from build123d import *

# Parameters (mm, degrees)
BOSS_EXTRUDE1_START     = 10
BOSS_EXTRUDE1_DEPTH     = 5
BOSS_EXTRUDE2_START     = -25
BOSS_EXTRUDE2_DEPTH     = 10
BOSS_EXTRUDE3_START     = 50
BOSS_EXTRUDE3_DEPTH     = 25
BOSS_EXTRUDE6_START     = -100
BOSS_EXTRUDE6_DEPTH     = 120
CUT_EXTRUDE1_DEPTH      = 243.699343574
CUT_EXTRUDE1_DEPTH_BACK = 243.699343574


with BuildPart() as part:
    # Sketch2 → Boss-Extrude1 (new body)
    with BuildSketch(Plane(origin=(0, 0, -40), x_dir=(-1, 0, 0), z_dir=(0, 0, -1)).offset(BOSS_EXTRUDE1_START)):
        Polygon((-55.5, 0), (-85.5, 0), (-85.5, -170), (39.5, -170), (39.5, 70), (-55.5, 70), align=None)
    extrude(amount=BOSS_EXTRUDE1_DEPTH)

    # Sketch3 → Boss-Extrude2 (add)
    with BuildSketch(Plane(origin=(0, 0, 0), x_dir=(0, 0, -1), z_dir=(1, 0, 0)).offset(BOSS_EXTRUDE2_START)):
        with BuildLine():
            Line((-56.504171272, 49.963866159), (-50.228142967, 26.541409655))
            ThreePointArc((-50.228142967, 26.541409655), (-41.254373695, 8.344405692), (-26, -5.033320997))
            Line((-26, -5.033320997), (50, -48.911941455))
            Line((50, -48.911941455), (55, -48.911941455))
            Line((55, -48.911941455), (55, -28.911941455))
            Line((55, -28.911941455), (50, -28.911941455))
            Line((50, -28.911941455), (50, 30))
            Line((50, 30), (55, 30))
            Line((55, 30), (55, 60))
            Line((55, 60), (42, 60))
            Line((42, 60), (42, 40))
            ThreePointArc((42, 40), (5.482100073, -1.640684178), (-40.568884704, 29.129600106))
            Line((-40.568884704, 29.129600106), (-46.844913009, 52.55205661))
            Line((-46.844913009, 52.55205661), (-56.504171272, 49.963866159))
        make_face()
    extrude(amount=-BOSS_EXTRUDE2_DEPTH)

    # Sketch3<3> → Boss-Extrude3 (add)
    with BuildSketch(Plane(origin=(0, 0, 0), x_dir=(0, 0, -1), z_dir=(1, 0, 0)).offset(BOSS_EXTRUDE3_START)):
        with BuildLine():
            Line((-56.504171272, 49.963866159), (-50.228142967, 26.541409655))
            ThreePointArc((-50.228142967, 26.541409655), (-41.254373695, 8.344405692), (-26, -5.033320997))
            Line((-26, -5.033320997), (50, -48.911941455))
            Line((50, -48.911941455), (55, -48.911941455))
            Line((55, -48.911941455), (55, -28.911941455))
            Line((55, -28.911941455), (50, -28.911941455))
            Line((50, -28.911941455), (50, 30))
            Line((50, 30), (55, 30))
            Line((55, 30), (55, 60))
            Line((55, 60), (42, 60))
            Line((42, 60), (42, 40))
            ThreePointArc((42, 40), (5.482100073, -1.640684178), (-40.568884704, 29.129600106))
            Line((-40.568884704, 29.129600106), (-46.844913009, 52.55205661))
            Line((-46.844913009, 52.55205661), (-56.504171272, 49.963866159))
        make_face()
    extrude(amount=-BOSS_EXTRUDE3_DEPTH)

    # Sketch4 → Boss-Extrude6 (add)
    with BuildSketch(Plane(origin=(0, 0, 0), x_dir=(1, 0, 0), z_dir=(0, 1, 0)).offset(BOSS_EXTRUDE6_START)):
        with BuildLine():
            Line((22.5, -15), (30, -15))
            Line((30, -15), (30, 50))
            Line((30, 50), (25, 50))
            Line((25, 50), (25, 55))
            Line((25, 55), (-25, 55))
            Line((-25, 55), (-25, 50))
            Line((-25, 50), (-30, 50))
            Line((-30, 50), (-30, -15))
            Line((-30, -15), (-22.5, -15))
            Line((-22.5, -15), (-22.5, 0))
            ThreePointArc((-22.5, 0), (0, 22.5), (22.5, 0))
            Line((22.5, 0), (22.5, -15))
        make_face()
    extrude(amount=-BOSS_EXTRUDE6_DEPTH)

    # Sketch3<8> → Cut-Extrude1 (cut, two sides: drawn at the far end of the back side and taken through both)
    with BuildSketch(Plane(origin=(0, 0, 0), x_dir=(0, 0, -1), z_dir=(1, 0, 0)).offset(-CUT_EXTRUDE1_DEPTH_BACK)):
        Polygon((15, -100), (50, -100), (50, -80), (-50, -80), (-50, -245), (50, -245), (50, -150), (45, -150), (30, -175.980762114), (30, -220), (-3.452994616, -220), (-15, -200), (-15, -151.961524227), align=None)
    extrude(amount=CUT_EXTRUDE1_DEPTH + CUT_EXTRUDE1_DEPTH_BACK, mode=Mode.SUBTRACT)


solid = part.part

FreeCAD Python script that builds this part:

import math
import FreeCAD as App
import Part
import Sketcher
Q = App.Units.Quantity


def add_polygon(sketch, points):
    """Adds a closed chain of lines whose ends are joined by coincident constraints."""
    first, n = sketch.GeometryCount, len(points)
    for a, b in zip(points, points[1:] + points[:1]):
        sketch.addGeometry(Part.LineSegment(App.Vector(*a, 0), App.Vector(*b, 0)), False)
    for i in range(n):
        sketch.addConstraint(Sketcher.Constraint("Coincident", first + i, 2, first + (i + 1) % n, 1))

doc = App.newDocument("Part")
params = doc.addObject("Spreadsheet::Sheet", "Params")
for row, (alias, value) in enumerate([
    ("sketch1_width", "30 mm"),
    ("sketch1_width2", "125 mm"),
    ("sketch1_height", "170 mm"),
    ("sketch1_height2", "240 mm"),
    ("pad1_length", "5 mm"),
    ("sketch2_radius", "52 mm"),
    ("sketch2_radius2", "42 mm"),
    ("sketch2_width", "20 mm"),
    ("sketch2_width2", "30 mm"),
    ("sketch2_height", "5 mm"),
    ("pad2_length", "10 mm"),
    ("sketch3_radius", "52 mm"),
    ("sketch3_radius2", "42 mm"),
    ("sketch3_width", "20 mm"),
    ("sketch3_width2", "30 mm"),
    ("sketch3_height", "5 mm"),
    ("pad3_length", "25 mm"),
    ("sketch4_radius", "22.5 mm"),
    ("sketch4_width", "5 mm"),
    ("sketch4_width2", "50 mm"),
    ("sketch4_height", "65 mm"),
    ("sketch4_height2", "15 mm"),
    ("pad4_length", "120 mm"),
    ("sketch5_width", "20 mm"),
    ("sketch5_width2", "165 mm"),
    ("sketch5_width3", "95 mm"),
    ("sketch5_height", "35 mm"),
    ("sketch5_height2", "100 mm"),
], start=1):
    params.set(f"A{row}", alias)
    params.set(f"B{row}", "=" + value)
    params.setAlias(f"B{row}", alias)

body = doc.addObject("PartDesign::Body", "Body")

# Sketch on XY plane
sketch1 = body.newObject("Sketcher::SketchObject", "Sketch")
sketch1.AttachmentSupport = (doc.getObject("XY_Plane"), [""])
sketch1.MapMode = "FlatFace"
sketch1.AttachmentOffset = App.Placement(App.Vector(0, 0, -50), App.Rotation())
add_polygon(sketch1, [(56, 0), (86, 0), (86, -170), (-40, -170), (-40, 70), (56, 70)])  # lines 0-5
sketch1.addConstraint(Sketcher.Constraint("Horizontal", 0))
sketch1.addConstraint(Sketcher.Constraint("Vertical", 1))
sketch1.addConstraint(Sketcher.Constraint("Horizontal", 2))
sketch1.addConstraint(Sketcher.Constraint("Vertical", 3))
sketch1.addConstraint(Sketcher.Constraint("Horizontal", 4))
sketch1.addConstraint(Sketcher.Constraint("Vertical", 5))
sketch1.addConstraint(Sketcher.Constraint("PointOnObject", 0, 2, -1))
sketch1.addConstraint(Sketcher.Constraint("DistanceX", 0, 1, 0, 2, Q("30 mm")))
sketch1.addConstraint(Sketcher.Constraint("DistanceX", 2, 2, 2, 1, Q("125 mm")))
sketch1.addConstraint(Sketcher.Constraint("DistanceY", 1, 2, 1, 1, Q("170 mm")))
sketch1.addConstraint(Sketcher.Constraint("DistanceY", 3, 1, 3, 2, Q("240 mm")))
sketch1.addConstraint(Sketcher.Constraint("DistanceX", -1, 1, 0, 2, Q("85.5 mm")))
sketch1.setExpression("Constraints[13]", "Params.sketch1_width")
sketch1.setExpression("Constraints[14]", "Params.sketch1_width2")
sketch1.setExpression("Constraints[15]", "Params.sketch1_height")
sketch1.setExpression("Constraints[16]", "Params.sketch1_height2")
pad1 = body.newObject("PartDesign::Pad", "Pad")
pad1.Profile = sketch1
pad1.setExpression("Length", "Params.pad1_length")
pad1.Reversed = True

# Sketch on YZ plane
sketch2 = body.newObject("Sketcher::SketchObject", "Sketch001")
sketch2.AttachmentSupport = (doc.getObject("YZ_Plane"), [""])
sketch2.MapMode = "FlatFace"
sketch2.AttachmentOffset = App.Placement(App.Vector(0, 0, -25), App.Rotation())
sketch2.addGeometry(Part.LineSegment(App.Vector(50, 57, 0), App.Vector(27, 50, 0)), False)
sketch2.addGeometry(Part.ArcOfCircle(Part.Circle(App.Vector(40, 0, 0), App.Vector(0, 0, 1), 52), math.radians(105), math.radians(150)), False)
sketch2.addGeometry(Part.LineSegment(App.Vector(-5, 26, 0), App.Vector(-49, -50, 0)), False)
sketch2.addGeometry(Part.LineSegment(App.Vector(-49, -50, 0), App.Vector(-49, -55, 0)), False)
sketch2.addGeometry(Part.LineSegment(App.Vector(-49, -55, 0), App.Vector(-29, -55, 0)), False)
sketch2.addGeometry(Part.LineSegment(App.Vector(-29, -55, 0), App.Vector(-29, -50, 0)), False)
sketch2.addGeometry(Part.LineSegment(App.Vector(-29, -50, 0), App.Vector(30, -50, 0)), False)
sketch2.addGeometry(Part.LineSegment(App.Vector(30, -50, 0), App.Vector(30, -55, 0)), False)
sketch2.addGeometry(Part.LineSegment(App.Vector(30, -55, 0), App.Vector(60, -55, 0)), False)
sketch2.addGeometry(Part.LineSegment(App.Vector(60, -55, 0), App.Vector(60, -42, 0)), False)
sketch2.addGeometry(Part.LineSegment(App.Vector(60, -42, 0), App.Vector(40, -42, 0)), False)
sketch2.addGeometry(Part.ArcOfCircle(Part.Circle(App.Vector(40, 0, 0), App.Vector(0, 0, 1), 42), math.radians(105), math.radians(270)), False)
sketch2.addGeometry(Part.LineSegment(App.Vector(29, 41, 0), App.Vector(53, 47, 0)), False)
sketch2.addGeometry(Part.LineSegment(App.Vector(53, 47, 0), App.Vector(50, 57, 0)), False)
sketch2.addConstraint(Sketcher.Constraint("Tangent", 0, 2, 1, 1))
sketch2.addConstraint(Sketcher.Constraint("Tangent", 1, 2, 2, 1))
sketch2.addConstraint(Sketcher.Constraint("Coincident", 2, 2, 3, 1))
sketch2.addConstraint(Sketcher.Constraint("Coincident", 3, 2, 4, 1))
sketch2.addConstraint(Sketcher.Constraint("Coincident", 4, 2, 5, 1))
sketch2.addConstraint(Sketcher.Constraint("Coincident", 5, 2, 6, 1))
sketch2.addConstraint(Sketcher.Constraint("Coincident", 6, 2, 7, 1))
sketch2.addConstraint(Sketcher.Constraint("Coincident", 7, 2, 8, 1))
sketch2.addConstraint(Sketcher.Constraint("Coincident", 8, 2, 9, 1))
sketch2.addConstraint(Sketcher.Constraint("Coincident", 9, 2, 10, 1))
sketch2.addConstraint(Sketcher.Constraint("Tangent", 10, 2, 11, 2))
sketch2.addConstraint(Sketcher.Constraint("Tangent", 11, 1, 12, 1))
sketch2.addConstraint(Sketcher.Constraint("Coincident", 12, 2, 13, 1))
sketch2.addConstraint(Sketcher.Constraint("Coincident", 13, 2, 0, 1))
sketch2.addConstraint(Sketcher.Constraint("Vertical", 3))
sketch2.addConstraint(Sketcher.Constraint("Horizontal", 4))
sketch2.addConstraint(Sketcher.Constraint("Vertical", 5))
sketch2.addConstraint(Sketcher.Constraint("Horizontal", 6))
sketch2.addConstraint(Sketcher.Constraint("Vertical", 7))
sketch2.addConstraint(Sketcher.Constraint("Horizontal", 8))
sketch2.addConstraint(Sketcher.Constraint("Vertical", 9))
sketch2.addConstraint(Sketcher.Constraint("Horizontal", 10))
sketch2.addConstraint(Sketcher.Constraint("Coincident", 11, 3, 1, 3))
sketch2.addConstraint(Sketcher.Constraint("PointOnObject", 1, 3, -1))
sketch2.addConstraint(Sketcher.Constraint("Parallel", 0, 12))
sketch2.addConstraint(Sketcher.Constraint("Perpendicular", 12, 13))
sketch2.addConstraint(Sketcher.Constraint("Horizontal", 2, 2, 5, 2))
sketch2.addConstraint(Sketcher.Constraint("Horizontal", 4, 2, 7, 2))
sketch2.addConstraint(Sketcher.Constraint("Equal", 4, 10))
sketch2.addConstraint(Sketcher.Constraint("Radius", 1, Q("52 mm")))
sketch2.addConstraint(Sketcher.Constraint("Radius", 11, Q("42 mm")))
sketch2.addConstraint(Sketcher.Constraint("DistanceX", 4, 1, 4, 2, Q("20 mm")))
sketch2.addConstraint(Sketcher.Constraint("DistanceX", 8, 1, 8, 2, Q("30 mm")))
sketch2.addConstraint(Sketcher.Constraint("DistanceY", 3, 2, 3, 1, Q("5 mm")))
sketch2.addConstraint(Sketcher.Constraint("DistanceY", 9, 1, 9, 2, Q("13 mm")))
sketch2.addConstraint(Sketcher.Constraint("Angle", 0, Q("-165 deg")))
sketch2.addConstraint(Sketcher.Constraint("Angle", 2, Q("-120 deg")))
sketch2.addConstraint(Sketcher.Constraint("DistanceX", -1, 1, 1, 3, Q("40 mm")))
sketch2.addConstraint(Sketcher.Constraint("Distance", 0, Q("24.248711 mm")))
sketch2.setExpression("Constraints[29]", "Params.sketch2_radius")
sketch2.setExpression("Constraints[30]", "Params.sketch2_radius2")
sketch2.setExpression("Constraints[31]", "Params.sketch2_width")
sketch2.setExpression("Constraints[32]", "Params.sketch2_width2")
sketch2.setExpression("Constraints[33]", "Params.sketch2_height")
pad2 = body.newObject("PartDesign::Pad", "Pad001")
pad2.Profile = sketch2
pad2.setExpression("Length", "Params.pad2_length")
pad2.Reversed = True

# Sketch on YZ plane
sketch3 = body.newObject("Sketcher::SketchObject", "Sketch002")
sketch3.AttachmentSupport = (doc.getObject("YZ_Plane"), [""])
sketch3.MapMode = "FlatFace"
sketch3.AttachmentOffset = App.Placement(App.Vector(0, 0, 50), App.Rotation())
sketch3.addGeometry(Part.LineSegment(App.Vector(50, 57, 0), App.Vector(27, 50, 0)), False)
sketch3.addGeometry(Part.ArcOfCircle(Part.Circle(App.Vector(40, 0, 0), App.Vector(0, 0, 1), 52), math.radians(105), math.radians(150)), False)
sketch3.addGeometry(Part.LineSegment(App.Vector(-5, 26, 0), App.Vector(-49, -50, 0)), False)
sketch3.addGeometry(Part.LineSegment(App.Vector(-49, -50, 0), App.Vector(-49, -55, 0)), False)
sketch3.addGeometry(Part.LineSegment(App.Vector(-49, -55, 0), App.Vector(-29, -55, 0)), False)
sketch3.addGeometry(Part.LineSegment(App.Vector(-29, -55, 0), App.Vector(-29, -50, 0)), False)
sketch3.addGeometry(Part.LineSegment(App.Vector(-29, -50, 0), App.Vector(30, -50, 0)), False)
sketch3.addGeometry(Part.LineSegment(App.Vector(30, -50, 0), App.Vector(30, -55, 0)), False)
sketch3.addGeometry(Part.LineSegment(App.Vector(30, -55, 0), App.Vector(60, -55, 0)), False)
sketch3.addGeometry(Part.LineSegment(App.Vector(60, -55, 0), App.Vector(60, -42, 0)), False)
sketch3.addGeometry(Part.LineSegment(App.Vector(60, -42, 0), App.Vector(40, -42, 0)), False)
sketch3.addGeometry(Part.ArcOfCircle(Part.Circle(App.Vector(40, 0, 0), App.Vector(0, 0, 1), 42), math.radians(105), math.radians(270)), False)
sketch3.addGeometry(Part.LineSegment(App.Vector(29, 41, 0), App.Vector(53, 47, 0)), False)
sketch3.addGeometry(Part.LineSegment(App.Vector(53, 47, 0), App.Vector(50, 57, 0)), False)
sketch3.addConstraint(Sketcher.Constraint("Tangent", 0, 2, 1, 1))
sketch3.addConstraint(Sketcher.Constraint("Tangent", 1, 2, 2, 1))
sketch3.addConstraint(Sketcher.Constraint("Coincident", 2, 2, 3, 1))
sketch3.addConstraint(Sketcher.Constraint("Coincident", 3, 2, 4, 1))
sketch3.addConstraint(Sketcher.Constraint("Coincident", 4, 2, 5, 1))
sketch3.addConstraint(Sketcher.Constraint("Coincident", 5, 2, 6, 1))
sketch3.addConstraint(Sketcher.Constraint("Coincident", 6, 2, 7, 1))
sketch3.addConstraint(Sketcher.Constraint("Coincident", 7, 2, 8, 1))
sketch3.addConstraint(Sketcher.Constraint("Coincident", 8, 2, 9, 1))
sketch3.addConstraint(Sketcher.Constraint("Coincident", 9, 2, 10, 1))
sketch3.addConstraint(Sketcher.Constraint("Tangent", 10, 2, 11, 2))
sketch3.addConstraint(Sketcher.Constraint("Tangent", 11, 1, 12, 1))
sketch3.addConstraint(Sketcher.Constraint("Coincident", 12, 2, 13, 1))
sketch3.addConstraint(Sketcher.Constraint("Coincident", 13, 2, 0, 1))
sketch3.addConstraint(Sketcher.Constraint("Vertical", 3))
sketch3.addConstraint(Sketcher.Constraint("Horizontal", 4))
sketch3.addConstraint(Sketcher.Constraint("Vertical", 5))
sketch3.addConstraint(Sketcher.Constraint("Horizontal", 6))
sketch3.addConstraint(Sketcher.Constraint("Vertical", 7))
sketch3.addConstraint(Sketcher.Constraint("Horizontal", 8))
sketch3.addConstraint(Sketcher.Constraint("Vertical", 9))
sketch3.addConstraint(Sketcher.Constraint("Horizontal", 10))
sketch3.addConstraint(Sketcher.Constraint("Coincident", 11, 3, 1, 3))
sketch3.addConstraint(Sketcher.Constraint("PointOnObject", 1, 3, -1))
sketch3.addConstraint(Sketcher.Constraint("Parallel", 0, 12))
sketch3.addConstraint(Sketcher.Constraint("Perpendicular", 12, 13))
sketch3.addConstraint(Sketcher.Constraint("Horizontal", 2, 2, 5, 2))
sketch3.addConstraint(Sketcher.Constraint("Horizontal", 4, 2, 7, 2))
sketch3.addConstraint(Sketcher.Constraint("Equal", 4, 10))
sketch3.addConstraint(Sketcher.Constraint("Radius", 1, Q("52 mm")))
sketch3.addConstraint(Sketcher.Constraint("Radius", 11, Q("42 mm")))
sketch3.addConstraint(Sketcher.Constraint("DistanceX", 4, 1, 4, 2, Q("20 mm")))
sketch3.addConstraint(Sketcher.Constraint("DistanceX", 8, 1, 8, 2, Q("30 mm")))
sketch3.addConstraint(Sketcher.Constraint("DistanceY", 3, 2, 3, 1, Q("5 mm")))
sketch3.addConstraint(Sketcher.Constraint("DistanceY", 9, 1, 9, 2, Q("13 mm")))
sketch3.addConstraint(Sketcher.Constraint("Angle", 0, Q("-165 deg")))
sketch3.addConstraint(Sketcher.Constraint("Angle", 2, Q("-120 deg")))
sketch3.addConstraint(Sketcher.Constraint("DistanceX", -1, 1, 1, 3, Q("40 mm")))
sketch3.addConstraint(Sketcher.Constraint("Distance", 0, Q("24.248711 mm")))
sketch3.setExpression("Constraints[29]", "Params.sketch3_radius")
sketch3.setExpression("Constraints[30]", "Params.sketch3_radius2")
sketch3.setExpression("Constraints[31]", "Params.sketch3_width")
sketch3.setExpression("Constraints[32]", "Params.sketch3_width2")
sketch3.setExpression("Constraints[33]", "Params.sketch3_height")
pad3 = body.newObject("PartDesign::Pad", "Pad002")
pad3.Profile = sketch3
pad3.setExpression("Length", "Params.pad3_length")
pad3.Reversed = True

# Sketch on XZ plane
sketch4 = body.newObject("Sketcher::SketchObject", "Sketch003")
sketch4.AttachmentSupport = (doc.getObject("XZ_Plane"), [""])
sketch4.MapMode = "FlatFace"
sketch4.AttachmentOffset = App.Placement(App.Vector(0, 0, 100), App.Rotation())
sketch4.addGeometry(Part.LineSegment(App.Vector(22, 15, 0), App.Vector(30, 15, 0)), False)
sketch4.addGeometry(Part.LineSegment(App.Vector(30, 15, 0), App.Vector(30, -50, 0)), False)
sketch4.addGeometry(Part.LineSegment(App.Vector(30, -50, 0), App.Vector(25, -50, 0)), False)
sketch4.addGeometry(Part.LineSegment(App.Vector(25, -50, 0), App.Vector(25, -55, 0)), False)
sketch4.addGeometry(Part.LineSegment(App.Vector(25, -55, 0), App.Vector(-25, -55, 0)), False)
sketch4.addGeometry(Part.LineSegment(App.Vector(-25, -55, 0), App.Vector(-25, -50, 0)), False)
sketch4.addGeometry(Part.LineSegment(App.Vector(-25, -50, 0), App.Vector(-30, -50, 0)), False)
sketch4.addGeometry(Part.LineSegment(App.Vector(-30, -50, 0), App.Vector(-30, 15, 0)), False)
sketch4.addGeometry(Part.LineSegment(App.Vector(-30, 15, 0), App.Vector(-22, 15, 0)), False)
sketch4.addGeometry(Part.LineSegment(App.Vector(-22, 15, 0), App.Vector(-22, 0, 0)), False)
sketch4.addGeometry(Part.ArcOfCircle(Part.Circle(App.Vector(0, 0, 0), App.Vector(0, 0, 1), 22), math.radians(180), math.radians(360)), False)
sketch4.addGeometry(Part.LineSegment(App.Vector(22, 0, 0), App.Vector(22, 15, 0)), False)
sketch4.addConstraint(Sketcher.Constraint("Coincident", 0, 2, 1, 1))
sketch4.addConstraint(Sketcher.Constraint("Coincident", 1, 2, 2, 1))
sketch4.addConstraint(Sketcher.Constraint("Coincident", 2, 2, 3, 1))
sketch4.addConstraint(Sketcher.Constraint("Coincident", 3, 2, 4, 1))
sketch4.addConstraint(Sketcher.Constraint("Coincident", 4, 2, 5, 1))
sketch4.addConstraint(Sketcher.Constraint("Coincident", 5, 2, 6, 1))
sketch4.addConstraint(Sketcher.Constraint("Coincident", 6, 2, 7, 1))
sketch4.addConstraint(Sketcher.Constraint("Coincident", 7, 2, 8, 1))
sketch4.addConstraint(Sketcher.Constraint("Coincident", 8, 2, 9, 1))
sketch4.addConstraint(Sketcher.Constraint("Tangent", 9, 2, 10, 1))
sketch4.addConstraint(Sketcher.Constraint("Tangent", 10, 2, 11, 1))
sketch4.addConstraint(Sketcher.Constraint("Coincident", 11, 2, 0, 1))
sketch4.addConstraint(Sketcher.Constraint("Horizontal", 0))
sketch4.addConstraint(Sketcher.Constraint("Vertical", 1))
sketch4.addConstraint(Sketcher.Constraint("Horizontal", 2))
sketch4.addConstraint(Sketcher.Constraint("Vertical", 3))
sketch4.addConstraint(Sketcher.Constraint("Horizontal", 4))
sketch4.addConstraint(Sketcher.Constraint("Vertical", 5))
sketch4.addConstraint(Sketcher.Constraint("Horizontal", 6))
sketch4.addConstraint(Sketcher.Constraint("Vertical", 7))
sketch4.addConstraint(Sketcher.Constraint("Horizontal", 8))
sketch4.addConstraint(Sketcher.Constraint("Vertical", 9))
sketch4.addConstraint(Sketcher.Constraint("Vertical", 11))
sketch4.addConstraint(Sketcher.Constraint("Coincident", 10, 3, -1, 1))
sketch4.addConstraint(Sketcher.Constraint("Symmetric", 2, 2, 5, 2, -2))
sketch4.addConstraint(Sketcher.Constraint("Symmetric", 0, 2, 7, 2, -2))
sketch4.addConstraint(Sketcher.Constraint("Equal", 6, 3))
sketch4.addConstraint(Sketcher.Constraint("Radius", 10, Q("22.5 mm")))
sketch4.addConstraint(Sketcher.Constraint("DistanceX", 2, 2, 2, 1, Q("5 mm")))
sketch4.addConstraint(Sketcher.Constraint("DistanceX", 4, 2, 4, 1, Q("50 mm")))
sketch4.addConstraint(Sketcher.Constraint("DistanceY", 1, 2, 1, 1, Q("65 mm")))
sketch4.addConstraint(Sketcher.Constraint("DistanceY", 9, 2, 9, 1, Q("15 mm")))
sketch4.setExpression("Constraints[27]", "Params.sketch4_radius")
sketch4.setExpression("Constraints[28]", "Params.sketch4_width")
sketch4.setExpression("Constraints[29]", "Params.sketch4_width2")
sketch4.setExpression("Constraints[30]", "Params.sketch4_height")
sketch4.setExpression("Constraints[31]", "Params.sketch4_height2")
pad4 = body.newObject("PartDesign::Pad", "Pad003")
pad4.Profile = sketch4
pad4.setExpression("Length", "Params.pad4_length")

# Sketch on YZ plane
sketch5 = body.newObject("Sketcher::SketchObject", "Sketch004")
sketch5.AttachmentSupport = (doc.getObject("YZ_Plane"), [""])
sketch5.MapMode = "FlatFace"
add_polygon(sketch5, [(-100, -15), (-100, -50), (-80, -50), (-80, 50), (-245, 50), (-245, -50), (-150, -50), (-150, -45), (-176, -30), (-220, -30), (-220, 3), (-200, 15), (-152, 15)])  # lines 0-12
sketch5.addConstraint(Sketcher.Constraint("Vertical", 0))
sketch5.addConstraint(Sketcher.Constraint("Horizontal", 1))
sketch5.addConstraint(Sketcher.Constraint("Vertical", 2))
sketch5.addConstraint(Sketcher.Constraint("Horizontal", 3))
sketch5.addConstraint(Sketcher.Constraint("Vertical", 4))
sketch5.addConstraint(Sketcher.Constraint("Horizontal", 5))
sketch5.addConstraint(Sketcher.Constraint("Vertical", 6))
sketch5.addConstraint(Sketcher.Constraint("Horizontal", 8))
sketch5.addConstraint(Sketcher.Constraint("Vertical", 9))
sketch5.addConstraint(Sketcher.Constraint("Horizontal", 11))
sketch5.addConstraint(Sketcher.Constraint("Parallel", 7, 12))
sketch5.addConstraint(Sketcher.Constraint("Horizontal", 1, 2, 4, 2))
sketch5.addConstraint(Sketcher.Constraint("DistanceX", 1, 1, 1, 2, Q("20 mm")))
sketch5.addConstraint(Sketcher.Constraint("DistanceX", 3, 2, 3, 1, Q("165 mm")))
sketch5.addConstraint(Sketcher.Constraint("DistanceX", 5, 1, 5, 2, Q("95 mm")))
sketch5.addConstraint(Sketcher.Constraint("DistanceY", 0, 2, 0, 1, Q("35 mm")))
sketch5.addConstraint(Sketcher.Constraint("DistanceY", 2, 1, 2, 2, Q("100 mm")))
sketch5.addConstraint(Sketcher.Constraint("DistanceY", 6, 1, 6, 2, Q("5 mm")))
sketch5.addConstraint(Sketcher.Constraint("Angle", 7, Q("150 deg")))
sketch5.addConstraint(Sketcher.Constraint("Angle", 10, Q("30 deg")))
sketch5.addConstraint(Sketcher.Constraint("Distance", 7, Q("30 mm")))
sketch5.addConstraint(Sketcher.Constraint("Distance", 12, Q("60 mm")))
sketch5.addConstraint(Sketcher.Constraint("DistanceX", 0, 2, -1, 1, Q("100 mm")))
sketch5.addConstraint(Sketcher.Constraint("DistanceY", 0, 2, -1, 1, Q("50 mm")))
sketch5.addConstraint(Sketcher.Constraint("DistanceX", 8, 2, -1, 1, Q("220 mm")))
sketch5.addConstraint(Sketcher.Constraint("DistanceX", 10, 2, -1, 1, Q("200 mm")))
sketch5.setExpression("Constraints[25]", "Params.sketch5_width")
sketch5.setExpression("Constraints[26]", "Params.sketch5_width2")
sketch5.setExpression("Constraints[27]", "Params.sketch5_width3")
sketch5.setExpression("Constraints[28]", "Params.sketch5_height")
sketch5.setExpression("Constraints[29]", "Params.sketch5_height2")
pocket1 = body.newObject("PartDesign::Pocket", "Pocket")
pocket1.Profile = sketch5
pocket1.Type = "ThroughAll"
pocket1.Midplane = True

doc.recompute()
